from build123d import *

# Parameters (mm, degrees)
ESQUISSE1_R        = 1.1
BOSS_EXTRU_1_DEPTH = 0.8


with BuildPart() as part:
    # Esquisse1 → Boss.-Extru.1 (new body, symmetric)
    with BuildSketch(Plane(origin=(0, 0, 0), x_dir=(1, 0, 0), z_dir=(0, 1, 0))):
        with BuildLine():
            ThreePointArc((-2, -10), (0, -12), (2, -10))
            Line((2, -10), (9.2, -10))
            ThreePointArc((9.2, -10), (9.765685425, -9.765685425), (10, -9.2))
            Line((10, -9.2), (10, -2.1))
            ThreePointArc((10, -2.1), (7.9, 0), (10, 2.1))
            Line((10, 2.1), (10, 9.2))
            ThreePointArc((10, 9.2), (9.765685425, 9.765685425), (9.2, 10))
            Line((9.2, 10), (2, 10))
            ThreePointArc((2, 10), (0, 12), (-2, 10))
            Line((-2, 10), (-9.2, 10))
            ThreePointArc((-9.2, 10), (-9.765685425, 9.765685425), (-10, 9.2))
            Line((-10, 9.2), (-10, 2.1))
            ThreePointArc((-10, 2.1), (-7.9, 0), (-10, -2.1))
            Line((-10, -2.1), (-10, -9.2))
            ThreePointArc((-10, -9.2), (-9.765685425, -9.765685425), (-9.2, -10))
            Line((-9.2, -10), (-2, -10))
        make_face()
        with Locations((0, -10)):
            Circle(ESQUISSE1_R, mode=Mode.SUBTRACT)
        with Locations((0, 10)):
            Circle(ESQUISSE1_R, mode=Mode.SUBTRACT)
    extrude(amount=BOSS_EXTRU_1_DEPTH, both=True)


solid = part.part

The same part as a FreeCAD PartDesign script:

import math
import FreeCAD as App
import Part
import Sketcher

V = App.Vector
Q = App.Units.Quantity

doc = App.newDocument("Part")
body = doc.addObject("PartDesign::Body", "Body")

sketch1 = doc.addObject("Sketcher::SketchObject", "Sketch")
body.addObject(sketch1)
sketch1.AttachmentSupport = (doc.XZ_Plane, [""])
sketch1.MapMode = "FlatFace"
sketch1.addGeometry([
    Part.ArcOfCircle(Part.Circle(V(0, 10, 0), V(0, 0, 1), 2), math.radians(0), math.radians(180)),
    Part.LineSegment(V(2, 10, 0), V(9.2, 10, 0)),
    Part.ArcOfCircle(Part.Circle(V(9.2, 9.2, 0), V(0, 0, 1), 0.8), math.radians(0), math.radians(90)),
    Part.LineSegment(V(10, 9.2, 0), V(10, 2.1, 0)),
    Part.ArcOfCircle(Part.Circle(V(10, 0, 0), V(0, 0, 1), 2.1), math.radians(90), math.radians(270)),
    Part.LineSegment(V(10, -2.1, 0), V(10, -9.2, 0)),
    Part.ArcOfCircle(Part.Circle(V(9.2, -9.2, 0), V(0, 0, 1), 0.8), math.radians(-90), math.radians(0)),
    Part.LineSegment(V(9.2, -10, 0), V(2, -10, 0)),
    Part.ArcOfCircle(Part.Circle(V(0, -10, 0), V(0, 0, 1), 2), math.radians(180), math.radians(360)),
    Part.LineSegment(V(-2, -10, 0), V(-9.2, -10, 0)),
    Part.ArcOfCircle(Part.Circle(V(-9.2, -9.2, 0), V(0, 0, 1), 0.8), math.radians(180), math.radians(270)),
    Part.LineSegment(V(-10, -9.2, 0), V(-10, -2.1, 0)),
    Part.ArcOfCircle(Part.Circle(V(-10, 0, 0), V(0, 0, 1), 2.1), math.radians(-90), math.radians(90)),
    Part.LineSegment(V(-10, 2.1, 0), V(-10, 9.2, 0)),
    Part.ArcOfCircle(Part.Circle(V(-9.2, 9.2, 0), V(0, 0, 1), 0.8), math.radians(90), math.radians(180)),
    Part.LineSegment(V(-9.2, 10, 0), V(-2, 10, 0)),
    Part.Circle(V(0, 10, 0), V(0, 0, 1), 1.1),
    Part.Circle(V(0, -10, 0), V(0, 0, 1), 1.1),
], False)
sketch1.addConstraint([
    Sketcher.Constraint("Coincident", 0, 1, 1, 1),
    Sketcher.Constraint("Tangent", 1, 2, 2, 2),
    Sketcher.Constraint("Tangent", 2, 1, 3, 1),
    Sketcher.Constraint("Coincident", 3, 2, 4, 1),
    Sketcher.Constraint("Coincident", 4, 2, 5, 1),
    Sketcher.Constraint("Tangent", 5, 2, 6, 2),
    Sketcher.Constraint("Tangent", 6, 1, 7, 1),
    Sketcher.Constraint("Coincident", 7, 2, 8, 2),
    Sketcher.Constraint("Coincident", 8, 1, 9, 1),
    Sketcher.Constraint("Tangent", 9, 2, 10, 2),
    Sketcher.Constraint("Tangent", 10, 1, 11, 1),
    Sketcher.Constraint("Coincident", 11, 2, 12, 1),
    Sketcher.Constraint("Coincident", 12, 2, 13, 1),
    Sketcher.Constraint("Tangent", 13, 2, 14, 2),
    Sketcher.Constraint("Tangent", 14, 1, 15, 1),
    Sketcher.Constraint("Coincident", 15, 2, 0, 2),
    Sketcher.Constraint("Horizontal", 1),
    Sketcher.Constraint("Vertical", 3),
    Sketcher.Constraint("Vertical", 5),
    Sketcher.Constraint("Horizontal", 7),
    Sketcher.Constraint("Horizontal", 9),
    Sketcher.Constraint("Vertical", 11),
    Sketcher.Constraint("Vertical", 13),
    Sketcher.Constraint("Horizontal", 15),
    Sketcher.Constraint("Coincident", 16, 3, 0, 3),
    Sketcher.Constraint("Coincident", 17, 3, 8, 3),
    Sketcher.Constraint("Equal", 2, 6),
    Sketcher.Constraint("Equal", 0, 8),
    Sketcher.Constraint("Equal", 6, 10),
    Sketcher.Constraint("Equal", 4, 12),
    Sketcher.Constraint("Equal", 10, 14),
    Sketcher.Constraint("Equal", 16, 17),
    Sketcher.Constraint("Symmetric", 0, 3, 8, 3, -1, 1),
    Sketcher.Constraint("Symmetric", 2, 3, 10, 3, -1, 1),
    Sketcher.Constraint("Symmetric", 4, 3, 12, 3, -1, 1),
    Sketcher.Constraint("Symmetric", 6, 3, 14, 3, -1, 1),
    Sketcher.Constraint("Symmetric", 6, 3, 10, 3, -2),
    Sketcher.Constraint("PointOnObject", 0, 3, -2),
    Sketcher.Constraint("PointOnObject", 4, 3, -1),
    Sketcher.Constraint("Horizontal", 16, 3, 0, 1),
    Sketcher.Constraint("Vertical", 4, 3, 2, 1),
    Sketcher.Constraint("Radius", 0, Q("2 mm")),
    Sketcher.Constraint("Diameter", 16, Q("2.2 mm")),
    Sketcher.Constraint("Radius", 2, Q("0.8 mm")),
    Sketcher.Constraint("Radius", 4, Q("2.1 mm")),
    Sketcher.Constraint("DistanceX", 1, 1, 1, 2, Q("7.2 mm")),
    Sketcher.Constraint("DistanceY", 3, 2, 3, 1, Q("7.1 mm")),
])
pad1 = doc.addObject("PartDesign::Pad", "Pad")
body.addObject(pad1)
pad1.Profile = sketch1
pad1.Length = 1.6
pad1.Midplane = True

doc.recompute()
